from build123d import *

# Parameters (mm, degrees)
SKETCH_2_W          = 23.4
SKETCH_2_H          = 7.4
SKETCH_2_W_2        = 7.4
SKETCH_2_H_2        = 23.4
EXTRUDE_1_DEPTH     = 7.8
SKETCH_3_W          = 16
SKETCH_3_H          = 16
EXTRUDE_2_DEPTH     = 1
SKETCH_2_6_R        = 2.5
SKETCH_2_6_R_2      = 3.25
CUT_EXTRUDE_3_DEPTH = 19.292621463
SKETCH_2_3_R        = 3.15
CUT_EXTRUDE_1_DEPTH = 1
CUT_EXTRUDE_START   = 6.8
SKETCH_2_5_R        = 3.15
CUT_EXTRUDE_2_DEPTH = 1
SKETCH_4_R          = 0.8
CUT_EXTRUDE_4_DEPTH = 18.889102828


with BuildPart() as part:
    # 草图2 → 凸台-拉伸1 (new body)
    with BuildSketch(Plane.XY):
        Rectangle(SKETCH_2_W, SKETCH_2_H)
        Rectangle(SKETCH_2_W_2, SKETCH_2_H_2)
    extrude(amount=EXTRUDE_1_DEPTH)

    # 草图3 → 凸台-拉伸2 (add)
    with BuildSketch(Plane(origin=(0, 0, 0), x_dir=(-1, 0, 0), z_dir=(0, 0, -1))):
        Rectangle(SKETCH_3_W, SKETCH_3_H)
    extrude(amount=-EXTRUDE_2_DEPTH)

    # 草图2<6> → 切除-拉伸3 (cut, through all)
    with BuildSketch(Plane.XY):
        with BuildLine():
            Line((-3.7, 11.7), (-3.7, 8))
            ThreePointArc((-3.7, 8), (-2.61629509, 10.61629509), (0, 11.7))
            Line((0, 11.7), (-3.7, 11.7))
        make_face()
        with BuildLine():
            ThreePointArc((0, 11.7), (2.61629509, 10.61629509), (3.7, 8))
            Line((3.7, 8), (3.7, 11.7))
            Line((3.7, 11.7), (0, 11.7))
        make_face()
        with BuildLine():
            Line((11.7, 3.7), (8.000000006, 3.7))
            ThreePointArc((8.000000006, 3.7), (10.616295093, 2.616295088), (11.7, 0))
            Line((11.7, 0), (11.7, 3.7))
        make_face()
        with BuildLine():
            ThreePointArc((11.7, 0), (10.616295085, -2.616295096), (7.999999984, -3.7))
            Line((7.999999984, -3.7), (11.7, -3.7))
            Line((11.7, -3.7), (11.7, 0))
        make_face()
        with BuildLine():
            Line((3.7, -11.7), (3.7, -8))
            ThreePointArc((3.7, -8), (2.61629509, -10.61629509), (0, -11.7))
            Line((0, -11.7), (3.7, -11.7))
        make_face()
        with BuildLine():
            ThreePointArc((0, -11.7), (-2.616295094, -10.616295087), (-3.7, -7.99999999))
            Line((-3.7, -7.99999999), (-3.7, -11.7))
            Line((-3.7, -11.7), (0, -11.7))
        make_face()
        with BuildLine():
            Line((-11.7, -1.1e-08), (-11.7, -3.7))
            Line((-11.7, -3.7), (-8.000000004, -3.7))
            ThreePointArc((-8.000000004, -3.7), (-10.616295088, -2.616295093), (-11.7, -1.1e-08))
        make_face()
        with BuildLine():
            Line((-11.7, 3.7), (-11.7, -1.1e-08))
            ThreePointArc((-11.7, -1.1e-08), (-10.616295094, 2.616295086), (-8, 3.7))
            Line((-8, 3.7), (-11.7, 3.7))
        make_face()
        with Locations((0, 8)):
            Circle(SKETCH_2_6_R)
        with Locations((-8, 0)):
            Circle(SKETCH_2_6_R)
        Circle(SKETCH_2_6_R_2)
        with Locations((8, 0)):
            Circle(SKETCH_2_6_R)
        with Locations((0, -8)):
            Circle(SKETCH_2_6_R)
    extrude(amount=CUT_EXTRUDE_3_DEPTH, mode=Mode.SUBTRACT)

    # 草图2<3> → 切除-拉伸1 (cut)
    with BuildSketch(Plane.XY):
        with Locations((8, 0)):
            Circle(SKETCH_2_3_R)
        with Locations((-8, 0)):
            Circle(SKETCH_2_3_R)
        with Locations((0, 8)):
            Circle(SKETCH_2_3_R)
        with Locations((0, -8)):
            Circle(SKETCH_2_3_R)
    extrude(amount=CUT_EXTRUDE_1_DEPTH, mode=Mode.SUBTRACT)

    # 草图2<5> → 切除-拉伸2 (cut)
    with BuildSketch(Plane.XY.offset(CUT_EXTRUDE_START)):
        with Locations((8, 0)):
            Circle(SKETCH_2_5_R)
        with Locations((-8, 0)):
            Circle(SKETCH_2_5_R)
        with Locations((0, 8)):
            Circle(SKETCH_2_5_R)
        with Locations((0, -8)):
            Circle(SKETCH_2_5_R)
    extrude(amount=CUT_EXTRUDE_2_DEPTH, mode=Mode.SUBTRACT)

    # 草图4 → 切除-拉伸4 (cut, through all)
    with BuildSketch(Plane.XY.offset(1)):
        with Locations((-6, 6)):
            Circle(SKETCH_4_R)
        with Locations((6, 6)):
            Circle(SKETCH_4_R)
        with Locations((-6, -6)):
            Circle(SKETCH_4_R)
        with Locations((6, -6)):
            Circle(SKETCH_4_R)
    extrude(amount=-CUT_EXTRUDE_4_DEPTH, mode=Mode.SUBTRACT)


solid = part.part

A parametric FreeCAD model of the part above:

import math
import FreeCAD as App
import Part
import Sketcher

V = App.Vector
Q = App.Units.Quantity


def add_polygon(sketch, points):
    """Adds a closed chain of lines whose ends are joined by coincident constraints."""
    first, n = sketch.GeometryCount, len(points)
    for a, b in zip(points, points[1:] + points[:1]):
        sketch.addGeometry(Part.LineSegment(App.Vector(*a, 0), App.Vector(*b, 0)), False)
    for i in range(n):
        sketch.addConstraint(Sketcher.Constraint("Coincident", first + i, 2, first + (i + 1) % n, 1))

doc = App.newDocument("Part")
params = doc.addObject("Spreadsheet::Sheet", "Params")
for row, (alias, value) in enumerate([
    ("sketch1_width", "8 mm"),
    ("sketch1_width2", "7.4 mm"),
    ("pad1_length", "7.8 mm"),
    ("sketch2_width", "16 mm"),
    ("pad2_length", "1 mm"),
    ("sketch3_diameter", "5 mm"),
    ("sketch3_diameter2", "6.5 mm"),
    ("sketch3_radius", "3.7 mm"),
    ("sketch4_diameter", "6.3 mm"),
    ("pocket2_length", "1 mm"),
    ("sketch5_diameter", "6.3 mm"),
    ("pocket3_length", "1 mm"),
    ("sketch6_diameter", "1.6 mm"),
], start=1):
    params.set(f"A{row}", alias)
    params.set(f"B{row}", "=" + value)
    params.setAlias(f"B{row}", alias)

body = doc.addObject("PartDesign::Body", "Body")

# Sketch on XY plane
sketch1 = body.newObject("Sketcher::SketchObject", "Sketch")
sketch1.AttachmentSupport = (doc.getObject("XY_Plane"), [""])
sketch1.MapMode = "FlatFace"
add_polygon(sketch1, [(-12, 4), (-12, -4), (-4, -4), (-4, -12), (4, -12), (4, -4), (12, -4), (12, 4), (4, 4), (4, 12), (-4, 12), (-4, 4)])  # lines 0-11
sketch1.addConstraint([
    Sketcher.Constraint("Vertical", 0),
    Sketcher.Constraint("Horizontal", 1),
    Sketcher.Constraint("Vertical", 2),
    Sketcher.Constraint("Horizontal", 3),
    Sketcher.Constraint("Vertical", 4),
    Sketcher.Constraint("Horizontal", 5),
    Sketcher.Constraint("Vertical", 6),
    Sketcher.Constraint("Horizontal", 7),
    Sketcher.Constraint("Vertical", 8),
    Sketcher.Constraint("Horizontal", 9),
    Sketcher.Constraint("Vertical", 10),
    Sketcher.Constraint("Horizontal", 11),
    Sketcher.Constraint("Symmetric", 0, 2, 6, 2, -1, 1),
    Sketcher.Constraint("Symmetric", 2, 2, 8, 2, -1, 1),
    Sketcher.Constraint("Symmetric", 4, 2, 10, 2, -1, 1),
    Sketcher.Constraint("Symmetric", 1, 2, 4, 2, -2),
    Sketcher.Constraint("Equal", 9, 0),
    Sketcher.Constraint("Equal", 11, 2),
    Sketcher.Constraint("DistanceX", 1, 1, 1, 2, Q("8 mm")),
    Sketcher.Constraint("DistanceX", 3, 1, 3, 2, Q("7.4 mm")),
])
sketch1.setExpression("Constraints[30]", "Params.sketch1_width")
sketch1.setExpression("Constraints[31]", "Params.sketch1_width2")
pad1 = body.newObject("PartDesign::Pad", "Pad")
pad1.Profile = sketch1
pad1.setExpression("Length", "Params.pad1_length")

# Sketch on XY plane
sketch2 = body.newObject("Sketcher::SketchObject", "Sketch001")
sketch2.AttachmentSupport = (doc.getObject("XY_Plane"), [""])
sketch2.MapMode = "FlatFace"
add_polygon(sketch2, [(8, 8), (8, -8), (-8, -8), (-8, 8)])  # lines 0-3
sketch2.addConstraint([
    Sketcher.Constraint("Vertical", 0),
    Sketcher.Constraint("Horizontal", 1),
    Sketcher.Constraint("Vertical", 2),
    Sketcher.Constraint("Horizontal", 3),
    Sketcher.Constraint("Symmetric", 0, 2, 2, 2, -1, 1),
    Sketcher.Constraint("Equal", 3, 0),
    Sketcher.Constraint("DistanceX", 1, 2, 1, 1, Q("16 mm")),
])
sketch2.setExpression("Constraints[10]", "Params.sketch2_width")
pad2 = body.newObject("PartDesign::Pad", "Pad001")
pad2.Profile = sketch2
pad2.setExpression("Length", "Params.pad2_length")

# Sketch on XY plane
sketch3 = body.newObject("Sketcher::SketchObject", "Sketch002")
sketch3.AttachmentSupport = (doc.getObject("XY_Plane"), [""])
sketch3.MapMode = "FlatFace"
sketch3.addGeometry([
    Part.LineSegment(V(-3.7, 11.7, 0), V(-3.7, 8, 0)),  # 0
    Part.ArcOfCircle(Part.Circle(V(0, 8, 0), V(0, 0, 1), 3.7), math.radians(90), math.radians(180)),  # 1
    Part.LineSegment(V(0, 11.7, 0), V(-3.7, 11.7, 0)),  # 2
    Part.ArcOfCircle(Part.Circle(V(0, 8, 0), V(0, 0, 1), 3.7), math.radians(0), math.radians(90)),  # 3
    Part.LineSegment(V(3.7, 8, 0), V(3.7, 11.7, 0)),  # 4
    Part.LineSegment(V(3.7, 11.7, 0), V(0, 11.7, 0)),  # 5
    Part.LineSegment(V(11.7, 3.7, 0), V(8, 3.7, 0)),  # 6
    Part.ArcOfCircle(Part.Circle(V(8, 0, 0), V(0, 0, 1), 3.7), math.radians(0), math.radians(90)),  # 7
    Part.LineSegment(V(11.7, 0, 0), V(11.7, 3.7, 0)),  # 8
    Part.ArcOfCircle(Part.Circle(V(8, 0, 0), V(0, 0, 1), 3.7), math.radians(-90), math.radians(0)),  # 9
    Part.LineSegment(V(8, -3.7, 0), V(11.7, -3.7, 0)),  # 10
    Part.LineSegment(V(11.7, -3.7, 0), V(11.7, 0, 0)),  # 11
    Part.LineSegment(V(3.7, -11.7, 0), V(3.7, -8, 0)),  # 12
    Part.ArcOfCircle(Part.Circle(V(0, -8, 0), V(0, 0, 1), 3.7), math.radians(-90), math.radians(0)),  # 13
    Part.LineSegment(V(0, -11.7, 0), V(3.7, -11.7, 0)),  # 14
    Part.ArcOfCircle(Part.Circle(V(0, -8, 0), V(0, 0, 1), 3.7), math.radians(180), math.radians(270)),  # 15
    Part.LineSegment(V(-3.7, -8, 0), V(-3.7, -11.7, 0)),  # 16
    Part.LineSegment(V(-3.7, -11.7, 0), V(0, -11.7, 0)),  # 17
    Part.LineSegment(V(-11.7, 0, 0), V(-11.7, -3.7, 0)),  # 18
    Part.LineSegment(V(-11.7, -3.7, 0), V(-8, -3.7, 0)),  # 19
    Part.ArcOfCircle(Part.Circle(V(-8, 0, 0), V(0, 0, 1), 3.7), math.radians(-180), math.radians(-90)),  # 20
    Part.LineSegment(V(-11.7, 3.7, 0), V(-11.7, 0, 0)),  # 21
    Part.ArcOfCircle(Part.Circle(V(-8, 0, 0), V(0, 0, 1), 3.7), math.radians(90), math.radians(180)),  # 22
    Part.LineSegment(V(-8, 3.7, 0), V(-11.7, 3.7, 0)),  # 23
    Part.Circle(V(0, 8, 0), V(0, 0, 1), 2.5),  # 24
    Part.Circle(V(-8, 0, 0), V(0, 0, 1), 2.5),  # 25
    Part.Circle(V(0, 0, 0), V(0, 0, 1), 3.2),  # 26
    Part.Circle(V(8, 0, 0), V(0, 0, 1), 2.5),  # 27
    Part.Circle(V(0, -8, 0), V(0, 0, 1), 2.5),  # 28
], False)
sketch3.addConstraint([
    Sketcher.Constraint("Tangent", 0, 2, 1, 2),
    Sketcher.Constraint("Tangent", 1, 1, 2, 1),
    Sketcher.Constraint("Coincident", 2, 2, 0, 1),
    Sketcher.Constraint("Tangent", 3, 1, 4, 1),
    Sketcher.Constraint("Coincident", 4, 2, 5, 1),
    Sketcher.Constraint("Tangent", 5, 2, 3, 2),
    Sketcher.Constraint("Tangent", 6, 2, 7, 2),
    Sketcher.Constraint("Tangent", 7, 1, 8, 1),
    Sketcher.Constraint("Coincident", 8, 2, 6, 1),
    Sketcher.Constraint("Tangent", 9, 1, 10, 1),
    Sketcher.Constraint("Coincident", 10, 2, 11, 1),
    Sketcher.Constraint("Tangent", 11, 2, 9, 2),
    Sketcher.Constraint("Tangent", 12, 2, 13, 2),
    Sketcher.Constraint("Tangent", 13, 1, 14, 1),
    Sketcher.Constraint("Coincident", 14, 2, 12, 1),
    Sketcher.Constraint("Tangent", 15, 1, 16, 1),
    Sketcher.Constraint("Coincident", 16, 2, 17, 1),
    Sketcher.Constraint("Tangent", 17, 2, 15, 2),
    Sketcher.Constraint("Coincident", 18, 2, 19, 1),
    Sketcher.Constraint("Tangent", 19, 2, 20, 2),
    Sketcher.Constraint("Tangent", 20, 1, 18, 1),
    Sketcher.Constraint("Tangent", 21, 2, 22, 2),
    Sketcher.Constraint("Tangent", 22, 1, 23, 1),
    Sketcher.Constraint("Coincident", 23, 2, 21, 1),
    Sketcher.Constraint("Vertical", 0),
    Sketcher.Constraint("Horizontal", 2),
    Sketcher.Constraint("Vertical", 4),
    Sketcher.Constraint("Horizontal", 5),
    Sketcher.Constraint("Horizontal", 6),
    Sketcher.Constraint("Vertical", 8),
    Sketcher.Constraint("Horizontal", 10),
    Sketcher.Constraint("Vertical", 11),
    Sketcher.Constraint("Vertical", 12),
    Sketcher.Constraint("Horizontal", 14),
    Sketcher.Constraint("Vertical", 16),
    Sketcher.Constraint("Horizontal", 17),
    Sketcher.Constraint("Vertical", 18),
    Sketcher.Constraint("Horizontal", 19),
    Sketcher.Constraint("Vertical", 21),
    Sketcher.Constraint("Horizontal", 23),
    Sketcher.Constraint("Coincident", 26, 3, -1, 1),
    Sketcher.Constraint("Coincident", 3, 3, 1, 3),
    Sketcher.Constraint("Coincident", 9, 3, 7, 3),
    Sketcher.Constraint("Coincident", 15, 3, 13, 3),
    Sketcher.Constraint("Coincident", 22, 3, 20, 3),
    Sketcher.Constraint("Coincident", 24, 3, 1, 3),
    Sketcher.Constraint("Coincident", 25, 3, 20, 3),
    Sketcher.Constraint("Coincident", 27, 3, 7, 3),
    Sketcher.Constraint("Coincident", 28, 3, 13, 3),
    Sketcher.Constraint("Equal", 1, 3),
    Sketcher.Constraint("Equal", 3, 7),
    Sketcher.Constraint("Equal", 7, 9),
    Sketcher.Constraint("Equal", 9, 13),
    Sketcher.Constraint("Equal", 13, 15),
    Sketcher.Constraint("Equal", 15, 20),
    Sketcher.Constraint("Equal", 20, 22),
    Sketcher.Constraint("Equal", 24, 25),
    Sketcher.Constraint("Equal", 25, 27),
    Sketcher.Constraint("Equal", 27, 28),
    Sketcher.Constraint("Symmetric", 1, 3, 13, 3, -1, 1),
    Sketcher.Constraint("Symmetric", 7, 3, 20, 3, -1, 1),
    Sketcher.Constraint("PointOnObject", 1, 3, -2),
    Sketcher.Constraint("PointOnObject", 7, 3, -1),
    Sketcher.Constraint("Diameter", 24, Q("5 mm")),
    Sketcher.Constraint("Diameter", 26, Q("6.5 mm")),
    Sketcher.Constraint("Radius", 1, Q("3.7 mm")),
    Sketcher.Constraint("DistanceY", -1, 1, 1, 3, Q("8 mm")),
    Sketcher.Constraint("DistanceX", -1, 1, 7, 3, Q("8 mm")),
])
sketch3.setExpression("Constraints[63]", "Params.sketch3_diameter")
sketch3.setExpression("Constraints[64]", "Params.sketch3_diameter2")
sketch3.setExpression("Constraints[65]", "Params.sketch3_radius")
pocket1 = body.newObject("PartDesign::Pocket", "Pocket")
pocket1.Profile = sketch3
pocket1.Type = "ThroughAll"
pocket1.Reversed = True

# Sketch on XY plane
sketch4 = body.newObject("Sketcher::SketchObject", "Sketch003")
sketch4.AttachmentSupport = (doc.getObject("XY_Plane"), [""])
sketch4.MapMode = "FlatFace"
sketch4.addGeometry([
    Part.Circle(V(8, 0, 0), V(0, 0, 1), 3.1),
    Part.Circle(V(-8, 0, 0), V(0, 0, 1), 3.1),
    Part.Circle(V(0, 8, 0), V(0, 0, 1), 3.1),
    Part.Circle(V(0, -8, 0), V(0, 0, 1), 3.1),
], False)
sketch4.addConstraint([
    Sketcher.Constraint("Equal", 0, 1),
    Sketcher.Constraint("Equal", 1, 2),
    Sketcher.Constraint("Equal", 2, 3),
    Sketcher.Constraint("Symmetric", 0, 3, 1, 3, -1, 1),
    Sketcher.Constraint("Symmetric", 2, 3, 3, 3, -1, 1),
    Sketcher.Constraint("PointOnObject", 0, 3, -1),
    Sketcher.Constraint("PointOnObject", 2, 3, -2),
    Sketcher.Constraint("Diameter", 0, Q("6.3 mm")),
    Sketcher.Constraint("DistanceX", -1, 1, 0, 3, Q("8 mm")),
    Sketcher.Constraint("DistanceY", -1, 1, 2, 3, Q("8 mm")),
])
sketch4.setExpression("Constraints[7]", "Params.sketch4_diameter")
pocket2 = body.newObject("PartDesign::Pocket", "Pocket001")
pocket2.Profile = sketch4
pocket2.setExpression("Length", "Params.pocket2_length")
pocket2.Reversed = True

# Sketch on XY plane
sketch5 = body.newObject("Sketcher::SketchObject", "Sketch004")
sketch5.AttachmentSupport = (doc.getObject("XY_Plane"), [""])
sketch5.MapMode = "FlatFace"
sketch5.AttachmentOffset = App.Placement(V(0, 0, 6.8), App.Rotation())
sketch5.addGeometry([
    Part.Circle(V(8, 0, 0), V(0, 0, 1), 3.1),
    Part.Circle(V(-8, 0, 0), V(0, 0, 1), 3.1),
    Part.Circle(V(0, 8, 0), V(0, 0, 1), 3.1),
    Part.Circle(V(0, -8, 0), V(0, 0, 1), 3.1),
], False)
sketch5.addConstraint([
    Sketcher.Constraint("Equal", 0, 1),
    Sketcher.Constraint("Equal", 1, 2),
    Sketcher.Constraint("Equal", 2, 3),
    Sketcher.Constraint("Symmetric", 0, 3, 1, 3, -1, 1),
    Sketcher.Constraint("Symmetric", 2, 3, 3, 3, -1, 1),
    Sketcher.Constraint("PointOnObject", 0, 3, -1),
    Sketcher.Constraint("PointOnObject", 2, 3, -2),
    Sketcher.Constraint("Diameter", 0, Q("6.3 mm")),
    Sketcher.Constraint("DistanceX", -1, 1, 0, 3, Q("8 mm")),
    Sketcher.Constraint("DistanceY", -1, 1, 2, 3, Q("8 mm")),
])
sketch5.setExpression("Constraints[7]", "Params.sketch5_diameter")
pocket3 = body.newObject("PartDesign::Pocket", "Pocket002")
pocket3.Profile = sketch5
pocket3.setExpression("Length", "Params.pocket3_length")
pocket3.Reversed = True

# Sketch on XY plane
sketch6 = body.newObject("Sketcher::SketchObject", "Sketch005")
sketch6.AttachmentSupport = (doc.getObject("XY_Plane"), [""])
sketch6.MapMode = "FlatFace"
sketch6.AttachmentOffset = App.Placement(V(0, 0, 1), App.Rotation())
sketch6.addGeometry([
    Part.Circle(V(-6, 6, 0), V(0, 0, 1), 0.8),
    Part.Circle(V(6, 6, 0), V(0, 0, 1), 0.8),
    Part.Circle(V(-6, -6, 0), V(0, 0, 1), 0.8),
    Part.Circle(V(6, -6, 0), V(0, 0, 1), 0.8),
], False)
sketch6.addConstraint([
    Sketcher.Constraint("Equal", 0, 1),
    Sketcher.Constraint("Equal", 1, 2),
    Sketcher.Constraint("Equal", 2, 3),
    Sketcher.Constraint("Symmetric", 1, 3, 2, 3, -1, 1),
    Sketcher.Constraint("Symmetric", 0, 3, 3, 3, -1, 1),
    Sketcher.Constraint("Symmetric", 0, 3, 1, 3, -2),
    Sketcher.Constraint("Diameter", 0, Q("1.6 mm")),
    Sketcher.Constraint("DistanceX", 0, 3, -1, 1, Q("6 mm")),
    Sketcher.Constraint("DistanceY", -1, 1, 0, 3, Q("6 mm")),
])
sketch6.setExpression("Constraints[6]", "Params.sketch6_diameter")
pocket4 = body.newObject("PartDesign::Pocket", "Pocket003")
pocket4.Profile = sketch6
pocket4.Type = "ThroughAll"

doc.recompute()
